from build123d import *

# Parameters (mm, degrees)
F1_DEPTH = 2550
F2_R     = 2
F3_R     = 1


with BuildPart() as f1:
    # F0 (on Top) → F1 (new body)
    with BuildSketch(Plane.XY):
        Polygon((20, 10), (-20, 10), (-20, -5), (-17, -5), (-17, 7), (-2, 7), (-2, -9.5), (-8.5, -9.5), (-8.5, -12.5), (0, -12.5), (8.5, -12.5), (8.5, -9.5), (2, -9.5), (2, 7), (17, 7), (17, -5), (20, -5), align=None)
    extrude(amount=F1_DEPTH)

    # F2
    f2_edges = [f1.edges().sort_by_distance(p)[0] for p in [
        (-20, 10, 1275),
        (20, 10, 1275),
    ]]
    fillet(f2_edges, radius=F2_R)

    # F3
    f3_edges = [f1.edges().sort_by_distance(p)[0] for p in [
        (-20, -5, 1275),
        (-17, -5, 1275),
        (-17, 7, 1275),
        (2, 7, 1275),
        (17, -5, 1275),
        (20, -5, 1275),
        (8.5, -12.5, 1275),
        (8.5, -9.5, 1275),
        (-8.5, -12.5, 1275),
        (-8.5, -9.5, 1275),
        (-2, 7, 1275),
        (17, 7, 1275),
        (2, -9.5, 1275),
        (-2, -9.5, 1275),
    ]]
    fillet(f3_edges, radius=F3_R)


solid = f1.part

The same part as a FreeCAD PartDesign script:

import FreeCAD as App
import Part
import Sketcher
Q = App.Units.Quantity


def edges_at(feature, points):
    """Names of the edges that pass closest to the given points."""
    edges = feature.Shape.Edges
    near = lambda p: min(range(len(edges)), key=lambda i: edges[i].distToShape(Part.Vertex(*p))[0])
    return sorted({f"Edge{near(p) + 1}" for p in points})

doc = App.newDocument("Part")
params = doc.addObject("Spreadsheet::Sheet", "Params")
for row, (alias, value) in enumerate([
    ("sketch1_width", "40 mm"),
    ("sketch1_width2", "3 mm"),
    ("sketch1_width3", "15 mm"),
    ("sketch1_width4", "17 mm"),
    ("sketch1_height", "12 mm"),
    ("pad1_length", "2550 mm"),
    ("fillet_radius", "2 mm"),
    ("fillet2_radius", "1 mm"),
], start=1):
    params.set(f"A{row}", alias)
    params.set(f"B{row}", "=" + value)
    params.setAlias(f"B{row}", alias)

body = doc.addObject("PartDesign::Body", "Body")

sketch1 = body.newObject("Sketcher::SketchObject", "Sketch")
sketch1.AttachmentSupport = (doc.getObject("XY_Plane"), [""])
sketch1.MapMode = "FlatFace"
sketch1.addGeometry([
    Part.LineSegment(App.Vector(20, 10, 0), App.Vector(-20, 10, 0)),
    Part.LineSegment(App.Vector(-20, 10, 0), App.Vector(-20, -5, 0)),
    Part.LineSegment(App.Vector(-20, -5, 0), App.Vector(-17, -5, 0)),
    Part.LineSegment(App.Vector(-17, -5, 0), App.Vector(-17, 7, 0)),
    Part.LineSegment(App.Vector(-17, 7, 0), App.Vector(-2, 7, 0)),
    Part.LineSegment(App.Vector(-2, 7, 0), App.Vector(-2, -9.5, 0)),
    Part.LineSegment(App.Vector(-2, -9.5, 0), App.Vector(-8.5, -9.5, 0)),
    Part.LineSegment(App.Vector(-8.5, -9.5, 0), App.Vector(-8.5, -12.5, 0)),
    Part.LineSegment(App.Vector(-8.5, -12.5, 0), App.Vector(8.5, -12.5, 0)),
    Part.LineSegment(App.Vector(8.5, -12.5, 0), App.Vector(8.5, -9.5, 0)),
    Part.LineSegment(App.Vector(8.5, -9.5, 0), App.Vector(2, -9.5, 0)),
    Part.LineSegment(App.Vector(2, -9.5, 0), App.Vector(2, 7, 0)),
    Part.LineSegment(App.Vector(2, 7, 0), App.Vector(17, 7, 0)),
    Part.LineSegment(App.Vector(17, 7, 0), App.Vector(17, -5, 0)),
    Part.LineSegment(App.Vector(17, -5, 0), App.Vector(20, -5, 0)),
    Part.LineSegment(App.Vector(20, -5, 0), App.Vector(20, 10, 0)),
], False)
sketch1.addConstraint([
    Sketcher.Constraint("Coincident", 0, 2, 1, 1),
    Sketcher.Constraint("Coincident", 1, 2, 2, 1),
    Sketcher.Constraint("Coincident", 2, 2, 3, 1),
    Sketcher.Constraint("Coincident", 3, 2, 4, 1),
    Sketcher.Constraint("Coincident", 4, 2, 5, 1),
    Sketcher.Constraint("Coincident", 5, 2, 6, 1),
    Sketcher.Constraint("Coincident", 6, 2, 7, 1),
    Sketcher.Constraint("Coincident", 7, 2, 8, 1),
    Sketcher.Constraint("Coincident", 8, 2, 9, 1),
    Sketcher.Constraint("Coincident", 9, 2, 10, 1),
    Sketcher.Constraint("Coincident", 10, 2, 11, 1),
    Sketcher.Constraint("Coincident", 11, 2, 12, 1),
    Sketcher.Constraint("Coincident", 12, 2, 13, 1),
    Sketcher.Constraint("Coincident", 13, 2, 14, 1),
    Sketcher.Constraint("Coincident", 14, 2, 15, 1),
    Sketcher.Constraint("Coincident", 15, 2, 0, 1),
    Sketcher.Constraint("Horizontal", 0),
    Sketcher.Constraint("Vertical", 1),
    Sketcher.Constraint("Horizontal", 2),
    Sketcher.Constraint("Vertical", 3),
    Sketcher.Constraint("Horizontal", 4),
    Sketcher.Constraint("Vertical", 5),
    Sketcher.Constraint("Horizontal", 6),
    Sketcher.Constraint("Vertical", 7),
    Sketcher.Constraint("Horizontal", 8),
    Sketcher.Constraint("Vertical", 9),
    Sketcher.Constraint("Horizontal", 10),
    Sketcher.Constraint("Vertical", 11),
    Sketcher.Constraint("Horizontal", 12),
    Sketcher.Constraint("Vertical", 13),
    Sketcher.Constraint("Horizontal", 14),
    Sketcher.Constraint("Vertical", 15),
    Sketcher.Constraint("Symmetric", 6, 2, 9, 2, -2),
    Sketcher.Constraint("Symmetric", 4, 2, 11, 2, -2),
    Sketcher.Constraint("Symmetric", 2, 2, 13, 2, -2),
    Sketcher.Constraint("Equal", 2, 14),
    Sketcher.Constraint("Equal", 12, 1),
    Sketcher.Constraint("Equal", 14, 7),
    Sketcher.Constraint("DistanceX", 0, 2, 0, 1, Q("40 mm")),
    Sketcher.Constraint("DistanceX", 2, 1, 2, 2, Q("3 mm")),
    Sketcher.Constraint("DistanceX", 4, 1, 4, 2, Q("15 mm")),
    Sketcher.Constraint("DistanceX", 8, 1, 8, 2, Q("17 mm")),
    Sketcher.Constraint("DistanceY", 3, 1, 3, 2, Q("12 mm")),
    Sketcher.Constraint("DistanceY", 5, 2, 5, 1, Q("16.5 mm")),
    Sketcher.Constraint("DistanceY", -1, 1, 0, 2, Q("10 mm")),
])
sketch1.setExpression("Constraints[38]", "Params.sketch1_width")
sketch1.setExpression("Constraints[39]", "Params.sketch1_width2")
sketch1.setExpression("Constraints[40]", "Params.sketch1_width3")
sketch1.setExpression("Constraints[41]", "Params.sketch1_width4")
sketch1.setExpression("Constraints[42]", "Params.sketch1_height")
pad1 = body.newObject("PartDesign::Pad", "Pad")
pad1.Profile = sketch1
pad1.setExpression("Length", "Params.pad1_length")
doc.recompute()

fillet = body.newObject("PartDesign::Fillet", "Fillet")
fillet.Base = (pad1, edges_at(pad1, [(-20, 10, 1275), (20, 10, 1275)]))
fillet.setExpression("Radius", "Params.fillet_radius")
doc.recompute()

fillet2 = body.newObject("PartDesign::Fillet", "Fillet001")
fillet2.Base = (fillet, edges_at(fillet, [
    (-20, -5, 1275),
    (-17, -5, 1275),
    (-17, 7, 1275),
    (2, 7, 1275),
    (17, -5, 1275),
    (20, -5, 1275),
    (8.5, -12.5, 1275),
    (8.5, -9.5, 1275),
    (-8.5, -12.5, 1275),
    (-8.5, -9.5, 1275),
    (-2, 7, 1275),
    (17, 7, 1275),
    (2, -9.5, 1275),
    (-2, -9.5, 1275),
]))
fillet2.setExpression("Radius", "Params.fillet2_radius")

doc.recompute()
